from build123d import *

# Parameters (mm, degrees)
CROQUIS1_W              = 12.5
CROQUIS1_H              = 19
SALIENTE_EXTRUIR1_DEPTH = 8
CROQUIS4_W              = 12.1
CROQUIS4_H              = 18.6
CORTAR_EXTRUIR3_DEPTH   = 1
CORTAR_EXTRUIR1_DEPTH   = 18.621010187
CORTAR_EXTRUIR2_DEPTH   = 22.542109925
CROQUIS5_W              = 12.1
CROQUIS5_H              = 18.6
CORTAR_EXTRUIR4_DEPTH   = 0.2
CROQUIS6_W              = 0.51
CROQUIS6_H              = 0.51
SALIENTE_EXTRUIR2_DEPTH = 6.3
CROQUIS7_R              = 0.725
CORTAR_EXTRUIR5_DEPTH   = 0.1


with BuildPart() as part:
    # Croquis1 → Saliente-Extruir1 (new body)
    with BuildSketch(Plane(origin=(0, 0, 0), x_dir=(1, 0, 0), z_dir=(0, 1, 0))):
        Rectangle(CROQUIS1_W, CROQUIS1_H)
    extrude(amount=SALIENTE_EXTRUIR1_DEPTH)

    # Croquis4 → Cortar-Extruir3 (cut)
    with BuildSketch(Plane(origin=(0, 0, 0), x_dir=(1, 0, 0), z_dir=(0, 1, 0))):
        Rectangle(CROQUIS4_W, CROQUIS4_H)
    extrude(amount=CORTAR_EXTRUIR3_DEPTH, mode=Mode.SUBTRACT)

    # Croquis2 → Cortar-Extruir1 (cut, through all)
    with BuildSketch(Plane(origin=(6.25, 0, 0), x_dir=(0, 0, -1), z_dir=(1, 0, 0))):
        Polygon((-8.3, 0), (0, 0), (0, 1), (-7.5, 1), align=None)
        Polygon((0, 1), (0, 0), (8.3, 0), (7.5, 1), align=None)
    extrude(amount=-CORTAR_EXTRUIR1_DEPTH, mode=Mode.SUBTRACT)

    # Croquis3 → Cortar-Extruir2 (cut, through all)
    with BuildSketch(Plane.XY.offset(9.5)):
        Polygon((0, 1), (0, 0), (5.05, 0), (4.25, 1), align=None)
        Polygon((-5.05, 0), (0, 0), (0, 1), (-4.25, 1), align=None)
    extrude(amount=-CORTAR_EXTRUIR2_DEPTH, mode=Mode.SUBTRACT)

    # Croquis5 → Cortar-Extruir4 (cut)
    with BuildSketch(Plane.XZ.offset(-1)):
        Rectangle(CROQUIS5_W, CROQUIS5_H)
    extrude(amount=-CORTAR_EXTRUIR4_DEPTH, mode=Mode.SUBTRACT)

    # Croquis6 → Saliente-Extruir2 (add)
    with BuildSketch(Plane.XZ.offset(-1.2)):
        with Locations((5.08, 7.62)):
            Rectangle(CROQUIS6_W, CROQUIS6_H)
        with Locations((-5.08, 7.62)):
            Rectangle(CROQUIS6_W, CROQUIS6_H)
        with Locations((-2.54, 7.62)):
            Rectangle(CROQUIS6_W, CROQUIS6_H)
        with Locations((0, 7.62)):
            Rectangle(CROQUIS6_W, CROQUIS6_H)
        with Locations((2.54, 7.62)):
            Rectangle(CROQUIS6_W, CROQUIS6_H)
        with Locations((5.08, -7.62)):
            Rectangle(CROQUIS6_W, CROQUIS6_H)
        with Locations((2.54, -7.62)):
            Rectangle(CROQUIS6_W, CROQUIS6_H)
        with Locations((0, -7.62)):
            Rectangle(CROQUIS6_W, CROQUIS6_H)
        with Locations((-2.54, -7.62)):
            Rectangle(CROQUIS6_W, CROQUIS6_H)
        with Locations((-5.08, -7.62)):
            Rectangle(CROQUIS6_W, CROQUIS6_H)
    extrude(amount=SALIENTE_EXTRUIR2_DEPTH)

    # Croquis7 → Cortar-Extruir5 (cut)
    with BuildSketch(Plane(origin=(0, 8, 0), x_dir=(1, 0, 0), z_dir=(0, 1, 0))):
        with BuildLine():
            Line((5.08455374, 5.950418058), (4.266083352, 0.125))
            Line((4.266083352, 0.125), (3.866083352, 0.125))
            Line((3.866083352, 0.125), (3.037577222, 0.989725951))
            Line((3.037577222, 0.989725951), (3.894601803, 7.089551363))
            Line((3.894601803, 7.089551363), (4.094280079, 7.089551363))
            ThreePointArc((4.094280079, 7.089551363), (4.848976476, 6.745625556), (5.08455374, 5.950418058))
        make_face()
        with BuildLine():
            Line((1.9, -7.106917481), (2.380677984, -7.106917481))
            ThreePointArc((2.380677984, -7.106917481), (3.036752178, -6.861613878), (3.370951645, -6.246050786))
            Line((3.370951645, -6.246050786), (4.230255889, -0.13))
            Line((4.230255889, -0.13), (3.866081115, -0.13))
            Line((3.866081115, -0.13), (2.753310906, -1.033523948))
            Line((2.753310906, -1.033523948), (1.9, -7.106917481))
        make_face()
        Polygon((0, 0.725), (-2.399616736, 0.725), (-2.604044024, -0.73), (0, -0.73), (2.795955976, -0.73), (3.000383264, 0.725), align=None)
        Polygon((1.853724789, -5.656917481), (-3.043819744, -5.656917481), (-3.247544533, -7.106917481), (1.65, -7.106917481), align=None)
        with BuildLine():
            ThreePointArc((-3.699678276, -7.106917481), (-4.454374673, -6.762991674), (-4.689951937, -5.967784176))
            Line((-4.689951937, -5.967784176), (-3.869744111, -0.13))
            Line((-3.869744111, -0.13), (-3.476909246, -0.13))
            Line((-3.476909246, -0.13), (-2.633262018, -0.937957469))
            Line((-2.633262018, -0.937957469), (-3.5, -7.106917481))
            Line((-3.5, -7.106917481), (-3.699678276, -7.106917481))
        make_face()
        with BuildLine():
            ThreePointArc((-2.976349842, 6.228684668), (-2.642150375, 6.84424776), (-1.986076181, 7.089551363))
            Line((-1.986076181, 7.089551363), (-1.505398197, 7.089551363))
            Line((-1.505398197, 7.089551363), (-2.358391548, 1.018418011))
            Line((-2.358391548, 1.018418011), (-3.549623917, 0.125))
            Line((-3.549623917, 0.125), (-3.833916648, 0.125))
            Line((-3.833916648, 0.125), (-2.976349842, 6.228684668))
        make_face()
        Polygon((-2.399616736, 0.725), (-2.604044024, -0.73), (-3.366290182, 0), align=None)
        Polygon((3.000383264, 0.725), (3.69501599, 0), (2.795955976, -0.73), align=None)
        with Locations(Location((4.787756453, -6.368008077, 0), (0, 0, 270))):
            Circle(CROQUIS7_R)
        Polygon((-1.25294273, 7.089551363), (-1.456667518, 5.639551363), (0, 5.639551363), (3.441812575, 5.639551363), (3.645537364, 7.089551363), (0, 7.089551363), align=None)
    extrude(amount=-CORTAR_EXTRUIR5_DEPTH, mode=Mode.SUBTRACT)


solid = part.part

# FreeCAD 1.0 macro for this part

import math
import FreeCAD as App
import Part
import Sketcher


def add_polygon(sketch, points):
    """Adds a closed chain of lines whose ends are joined by coincident constraints."""
    first, n = sketch.GeometryCount, len(points)
    for a, b in zip(points, points[1:] + points[:1]):
        sketch.addGeometry(Part.LineSegment(App.Vector(*a, 0), App.Vector(*b, 0)), False)
    for i in range(n):
        sketch.addConstraint(Sketcher.Constraint("Coincident", first + i, 2, first + (i + 1) % n, 1))

doc = App.newDocument("Part")
body = doc.addObject("PartDesign::Body", "Body")

# Sketch on XZ plane
sketch1 = body.newObject("Sketcher::SketchObject", "Sketch")
sketch1.AttachmentSupport = (doc.getObject("XZ_Plane"), [""])
sketch1.MapMode = "FlatFace"
add_polygon(sketch1, [(-6.25, -9.5), (-6.25, 9.5), (6.25, 9.5), (6.25, -9.5)])  # lines 0-3
sketch1.addConstraint(Sketcher.Constraint("Vertical", 0))
sketch1.addConstraint(Sketcher.Constraint("Horizontal", 1))
sketch1.addConstraint(Sketcher.Constraint("Vertical", 2))
sketch1.addConstraint(Sketcher.Constraint("Horizontal", 3))
sketch1.addConstraint(Sketcher.Constraint("Symmetric", 0, 2, 2, 2, -1, 1))
sketch1.addConstraint(Sketcher.Constraint("DistanceY", 0, 1, 0, 2, 19.0))
sketch1.addConstraint(Sketcher.Constraint("DistanceX", 1, 1, 1, 2, 12.5))
pad1 = body.newObject("PartDesign::Pad", "Pad")
pad1.Profile = sketch1
pad1.Length = 8
pad1.Reversed = True

# Sketch on XZ plane
sketch2 = body.newObject("Sketcher::SketchObject", "Sketch001")
sketch2.AttachmentSupport = (doc.getObject("XZ_Plane"), [""])
sketch2.MapMode = "FlatFace"
add_polygon(sketch2, [(-6.05, -9.3), (-6.05, 9.3), (6.05, 9.3), (6.05, -9.3)])  # lines 0-3
sketch2.addConstraint(Sketcher.Constraint("Vertical", 0))
sketch2.addConstraint(Sketcher.Constraint("Horizontal", 1))
sketch2.addConstraint(Sketcher.Constraint("Vertical", 2))
sketch2.addConstraint(Sketcher.Constraint("Horizontal", 3))
sketch2.addConstraint(Sketcher.Constraint("Symmetric", 0, 2, 2, 2, -1, 1))
sketch2.addConstraint(Sketcher.Constraint("DistanceX", 1, 1, 1, 2, 12.1))
sketch2.addConstraint(Sketcher.Constraint("DistanceY", 0, 1, 0, 2, 18.6))
pocket1 = body.newObject("PartDesign::Pocket", "Pocket")
pocket1.Profile = sketch2
pocket1.Length = 1

# Sketch on YZ plane
sketch3 = body.newObject("Sketcher::SketchObject", "Sketch002")
sketch3.AttachmentSupport = (doc.getObject("YZ_Plane"), [""])
sketch3.MapMode = "FlatFace"
sketch3.AttachmentOffset = App.Placement(App.Vector(0, 0, 6.25), App.Rotation())
add_polygon(sketch3, [(0, 8.3), (0, -8.3), (1, -7.5), (1, 7.5)])  # lines 0-3
sketch3.addConstraint(Sketcher.Constraint("Vertical", 0))
sketch3.addConstraint(Sketcher.Constraint("Vertical", 2))
sketch3.addConstraint(Sketcher.Constraint("Symmetric", 0, 2, 3, 2, -1, 1))
sketch3.addConstraint(Sketcher.Constraint("Equal", 1, 3))
sketch3.addConstraint(Sketcher.Constraint("DistanceY", 2, 1, 2, 2, 15.0))
sketch3.addConstraint(Sketcher.Constraint("DistanceY", 0, 2, 0, 1, 16.6))
sketch3.addConstraint(Sketcher.Constraint("DistanceX", -1, 1, 1, 2, 1.0))
pocket2 = body.newObject("PartDesign::Pocket", "Pocket001")
pocket2.Profile = sketch3
pocket2.Type = "ThroughAll"

# Sketch on XY plane
sketch4 = body.newObject("Sketcher::SketchObject", "Sketch003")
sketch4.AttachmentSupport = (doc.getObject("XY_Plane"), [""])
sketch4.MapMode = "FlatFace"
sketch4.AttachmentOffset = App.Placement(App.Vector(0, 0, 9.5), App.Rotation())
add_polygon(sketch4, [(5.05, 0), (4.25, 1), (-4.25, 1), (-5.05, 0)])  # lines 0-3
sketch4.addConstraint(Sketcher.Constraint("Horizontal", 1))
sketch4.addConstraint(Sketcher.Constraint("Horizontal", 3))
sketch4.addConstraint(Sketcher.Constraint("Symmetric", 2, 2, 3, 2, -1, 1))
sketch4.addConstraint(Sketcher.Constraint("Equal", 0, 2))
sketch4.addConstraint(Sketcher.Constraint("DistanceX", 1, 2, 1, 1, 8.5))
sketch4.addConstraint(Sketcher.Constraint("DistanceX", 3, 1, 3, 2, 10.1))
sketch4.addConstraint(Sketcher.Constraint("DistanceY", -1, 1, 0, 2, 1.0))
pocket3 = body.newObject("PartDesign::Pocket", "Pocket002")
pocket3.Profile = sketch4
pocket3.Type = "ThroughAll"

# Sketch on XZ plane
sketch5 = body.newObject("Sketcher::SketchObject", "Sketch004")
sketch5.AttachmentSupport = (doc.getObject("XZ_Plane"), [""])
sketch5.MapMode = "FlatFace"
sketch5.AttachmentOffset = App.Placement(App.Vector(0, 0, -1), App.Rotation())
add_polygon(sketch5, [(-6.05, 9.3), (-6.05, -9.3), (6.05, -9.3), (6.05, 9.3)])  # lines 0-3
sketch5.addConstraint(Sketcher.Constraint("Vertical", 0))
sketch5.addConstraint(Sketcher.Constraint("Horizontal", 1))
sketch5.addConstraint(Sketcher.Constraint("Vertical", 2))
sketch5.addConstraint(Sketcher.Constraint("Horizontal", 3))
sketch5.addConstraint(Sketcher.Constraint("Symmetric", 0, 2, 2, 2, -1, 1))
sketch5.addConstraint(Sketcher.Constraint("DistanceX", 1, 1, 1, 2, 12.1))
sketch5.addConstraint(Sketcher.Constraint("DistanceY", 0, 2, 0, 1, 18.6))
pocket4 = body.newObject("PartDesign::Pocket", "Pocket003")
pocket4.Profile = sketch5
pocket4.Length = 0.2

# Sketch on XZ plane
sketch6 = body.newObject("Sketcher::SketchObject", "Sketch005")
sketch6.AttachmentSupport = (doc.getObject("XZ_Plane"), [""])
sketch6.MapMode = "FlatFace"
sketch6.AttachmentOffset = App.Placement(App.Vector(0, 0, -1.2), App.Rotation())
add_polygon(sketch6, [(4.825, 7.875), (4.825, 7.365), (5.335, 7.365), (5.335, 7.875)])  # lines 0-3
add_polygon(sketch6, [(-5.335, 7.875), (-5.335, 7.365), (-4.825, 7.365), (-4.825, 7.875)])  # lines 4-7
add_polygon(sketch6, [(-2.795, 7.875), (-2.795, 7.365), (-2.285, 7.365), (-2.285, 7.875)])  # lines 8-11
add_polygon(sketch6, [(-0.255, 7.875), (-0.255, 7.365), (0.255, 7.365), (0.255, 7.875)])  # lines 12-15
add_polygon(sketch6, [(2.285, 7.875), (2.285, 7.365), (2.795, 7.365), (2.795, 7.875)])  # lines 16-19
add_polygon(sketch6, [(4.825, -7.365), (4.825, -7.875), (5.335, -7.875), (5.335, -7.365)])  # lines 20-23
add_polygon(sketch6, [(2.285, -7.365), (2.285, -7.875), (2.795, -7.875), (2.795, -7.365)])  # lines 24-27
add_polygon(sketch6, [(-0.255, -7.365), (-0.255, -7.875), (0.255, -7.875), (0.255, -7.365)])  # lines 28-31
add_polygon(sketch6, [(-2.795, -7.365), (-2.795, -7.875), (-2.285, -7.875), (-2.285, -7.365)])  # lines 32-35
add_polygon(sketch6, [(-5.335, -7.365), (-5.335, -7.875), (-4.825, -7.875), (-4.825, -7.365)])  # lines 36-39
sketch6.addConstraint(Sketcher.Constraint("Vertical", 0))
sketch6.addConstraint(Sketcher.Constraint("Horizontal", 1))
sketch6.addConstraint(Sketcher.Constraint("Vertical", 2))
sketch6.addConstraint(Sketcher.Constraint("Horizontal", 3))
sketch6.addConstraint(Sketcher.Constraint("Vertical", 4))
sketch6.addConstraint(Sketcher.Constraint("Horizontal", 5))
sketch6.addConstraint(Sketcher.Constraint("Vertical", 6))
sketch6.addConstraint(Sketcher.Constraint("Horizontal", 7))
sketch6.addConstraint(Sketcher.Constraint("Vertical", 8))
sketch6.addConstraint(Sketcher.Constraint("Horizontal", 9))
sketch6.addConstraint(Sketcher.Constraint("Vertical", 10))
sketch6.addConstraint(Sketcher.Constraint("Horizontal", 11))
sketch6.addConstraint(Sketcher.Constraint("Vertical", 12))
sketch6.addConstraint(Sketcher.Constraint("Horizontal", 13))
sketch6.addConstraint(Sketcher.Constraint("Vertical", 14))
sketch6.addConstraint(Sketcher.Constraint("Horizontal", 15))
sketch6.addConstraint(Sketcher.Constraint("Vertical", 16))
sketch6.addConstraint(Sketcher.Constraint("Horizontal", 17))
sketch6.addConstraint(Sketcher.Constraint("Vertical", 18))
sketch6.addConstraint(Sketcher.Constraint("Horizontal", 19))
sketch6.addConstraint(Sketcher.Constraint("Vertical", 20))
sketch6.addConstraint(Sketcher.Constraint("Horizontal", 21))
sketch6.addConstraint(Sketcher.Constraint("Vertical", 22))
sketch6.addConstraint(Sketcher.Constraint("Horizontal", 23))
sketch6.addConstraint(Sketcher.Constraint("Vertical", 24))
sketch6.addConstraint(Sketcher.Constraint("Horizontal", 25))
sketch6.addConstraint(Sketcher.Constraint("Vertical", 26))
sketch6.addConstraint(Sketcher.Constraint("Horizontal", 27))
sketch6.addConstraint(Sketcher.Constraint("Vertical", 28))
sketch6.addConstraint(Sketcher.Constraint("Horizontal", 29))
sketch6.addConstraint(Sketcher.Constraint("Vertical", 30))
sketch6.addConstraint(Sketcher.Constraint("Horizontal", 31))
sketch6.addConstraint(Sketcher.Constraint("Vertical", 32))
sketch6.addConstraint(Sketcher.Constraint("Horizontal", 33))
sketch6.addConstraint(Sketcher.Constraint("Vertical", 34))
sketch6.addConstraint(Sketcher.Constraint("Horizontal", 35))
sketch6.addConstraint(Sketcher.Constraint("Vertical", 36))
sketch6.addConstraint(Sketcher.Constraint("Horizontal", 37))
sketch6.addConstraint(Sketcher.Constraint("Vertical", 38))
sketch6.addConstraint(Sketcher.Constraint("Horizontal", 39))
sketch6.addConstraint(Sketcher.Constraint("Symmetric", 6, 2, 20, 2, -1, 1))
sketch6.addConstraint(Sketcher.Constraint("Symmetric", 4, 2, 22, 2, -1, 1))
sketch6.addConstraint(Sketcher.Constraint("Symmetric", 10, 2, 24, 2, -1, 1))
sketch6.addConstraint(Sketcher.Constraint("Symmetric", 8, 2, 26, 2, -1, 1))
sketch6.addConstraint(Sketcher.Constraint("Symmetric", 14, 2, 28, 2, -1, 1))
sketch6.addConstraint(Sketcher.Constraint("Symmetric", 12, 2, 30, 2, -1, 1))
sketch6.addConstraint(Sketcher.Constraint("Symmetric", 18, 2, 32, 2, -1, 1))
sketch6.addConstraint(Sketcher.Constraint("Symmetric", 16, 2, 34, 2, -1, 1))
sketch6.addConstraint(Sketcher.Constraint("Symmetric", 2, 2, 36, 2, -1, 1))
sketch6.addConstraint(Sketcher.Constraint("Symmetric", 0, 2, 38, 2, -1, 1))
sketch6.addConstraint(Sketcher.Constraint("Symmetric", 1, 2, 4, 2, -2))
sketch6.addConstraint(Sketcher.Constraint("Symmetric", 3, 2, 6, 2, -2))
sketch6.addConstraint(Sketcher.Constraint("Symmetric", 9, 2, 16, 2, -2))
sketch6.addConstraint(Sketcher.Constraint("Symmetric", 11, 2, 18, 2, -2))
sketch6.addConstraint(Sketcher.Constraint("Horizontal", 5, 2, 8, 2))
sketch6.addConstraint(Sketcher.Constraint("Horizontal", 7, 2, 10, 2))
sketch6.addConstraint(Sketcher.Constraint("Horizontal", 9, 2, 12, 2))
sketch6.addConstraint(Sketcher.Constraint("Horizontal", 11, 2, 14, 2))
sketch6.addConstraint(Sketcher.Constraint("Vertical", 15, 2, 28, 2))
sketch6.addConstraint(Sketcher.Constraint("Equal", 7, 9))
sketch6.addConstraint(Sketcher.Constraint("Equal", 11, 13))
sketch6.addConstraint(Sketcher.Constraint("Equal", 39, 0))
sketch6.addConstraint(Sketcher.Constraint("DistanceX", 1, 1, 1, 2, 0.51))
sketch6.addConstraint(Sketcher.Constraint("DistanceX", 4, 2, 0, 2, 10.16))
sketch6.addConstraint(Sketcher.Constraint("DistanceX", 5, 2, 8, 2, 2.03))
sketch6.addConstraint(Sketcher.Constraint("DistanceY", 20, 2, 0, 2, 15.24))
pad2 = body.newObject("PartDesign::Pad", "Pad001")
pad2.Profile = sketch6
pad2.Length = 6.3

# Sketch on XZ plane
sketch7 = body.newObject("Sketcher::SketchObject", "Sketch006")
sketch7.AttachmentSupport = (doc.getObject("XZ_Plane"), [""])
sketch7.MapMode = "FlatFace"
sketch7.AttachmentOffset = App.Placement(App.Vector(0, 0, -8), App.Rotation())
sketch7.addGeometry(Part.LineSegment(App.Vector(4.266083, -0.125, 0), App.Vector(5.084554, -5.950418, 0)), False)  # 0
sketch7.addGeometry(Part.ArcOfCircle(Part.Circle(App.Vector(4.09428, -6.089551, 0), App.Vector(0, 0, 1), 1), math.radians(-90), math.radians(7.997697)), False)  # 1
sketch7.addGeometry(Part.LineSegment(App.Vector(4.09428, -7.089551, 0), App.Vector(3.894602, -7.089551, 0)), False)  # 2
sketch7.addGeometry(Part.LineSegment(App.Vector(3.894602, -7.089551, 0), App.Vector(3.037577, -0.989726, 0)), False)  # 3
sketch7.addGeometry(Part.LineSegment(App.Vector(3.037577, -0.989726, 0), App.Vector(3.866083, -0.125, 0)), False)  # 4
sketch7.addGeometry(Part.LineSegment(App.Vector(3.866083, -0.125, 0), App.Vector(4.266083, -0.125, 0)), False)  # 5
sketch7.addGeometry(Part.LineSegment(App.Vector(1.9, 7.106917, 0), App.Vector(2.380678, 7.106917, 0)), False)  # 6
sketch7.addGeometry(Part.ArcOfCircle(Part.Circle(App.Vector(2.380678, 6.106917, 0), App.Vector(0, 0, 1), 1), math.radians(7.997698), math.radians(90)), False)  # 7
sketch7.addGeometry(Part.LineSegment(App.Vector(3.370952, 6.246051, 0), App.Vector(4.230256, 0.13, 0)), False)  # 8
sketch7.addGeometry(Part.LineSegment(App.Vector(4.230256, 0.13, 0), App.Vector(3.866081, 0.13, 0)), False)  # 9
sketch7.addGeometry(Part.LineSegment(App.Vector(3.866081, 0.13, 0), App.Vector(2.753311, 1.033524, 0)), False)  # 10
sketch7.addGeometry(Part.LineSegment(App.Vector(2.753311, 1.033524, 0), App.Vector(1.9, 7.106917, 0)), False)  # 11
add_polygon(sketch7, [(-2.604044, 0.73), (2.795956, 0.73), (3.695016, 0), (3.000383, -0.725), (-2.399617, -0.725), (-3.36629, 0)])  # lines 12-17
add_polygon(sketch7, [(1.853725, 5.656917), (-3.04382, 5.656917), (-3.247545, 7.106917), (1.65, 7.106917)])  # lines 18-21
sketch7.addGeometry(Part.ArcOfCircle(Part.Circle(App.Vector(-3.699678, 6.106917, 0), App.Vector(0, 0, 1), 1), math.radians(90), math.radians(187.997697)), False)  # 22
sketch7.addGeometry(Part.LineSegment(App.Vector(-3.699678, 7.106917, 0), App.Vector(-3.5, 7.106917, 0)), False)  # 23
sketch7.addGeometry(Part.LineSegment(App.Vector(-3.5, 7.106917, 0), App.Vector(-2.633262, 0.937957, 0)), False)  # 24
sketch7.addGeometry(Part.LineSegment(App.Vector(-2.633262, 0.937957, 0), App.Vector(-3.476909, 0.13, 0)), False)  # 25
sketch7.addGeometry(Part.LineSegment(App.Vector(-3.476909, 0.13, 0), App.Vector(-3.869744, 0.13, 0)), False)  # 26
sketch7.addGeometry(Part.LineSegment(App.Vector(-3.869744, 0.13, 0), App.Vector(-4.689952, 5.967784, 0)), False)  # 27
sketch7.addGeometry(Part.ArcOfCircle(Part.Circle(App.Vector(-1.986076, -6.089551, 0), App.Vector(0, 0, 1), 1), math.radians(-172.002302), math.radians(-90)), False)  # 28
sketch7.addGeometry(Part.LineSegment(App.Vector(-2.97635, -6.228685, 0), App.Vector(-3.833917, -0.125, 0)), False)  # 29
sketch7.addGeometry(Part.LineSegment(App.Vector(-3.833917, -0.125, 0), App.Vector(-3.549624, -0.125, 0)), False)  # 30
sketch7.addGeometry(Part.LineSegment(App.Vector(-3.549624, -0.125, 0), App.Vector(-2.358392, -1.018418, 0)), False)  # 31
sketch7.addGeometry(Part.LineSegment(App.Vector(-2.358392, -1.018418, 0), App.Vector(-1.505398, -7.089551, 0)), False)  # 32
sketch7.addGeometry(Part.LineSegment(App.Vector(-1.505398, -7.089551, 0), App.Vector(-1.986076, -7.089551, 0)), False)  # 33
sketch7.addGeometry(Part.Circle(App.Vector(4.787756, 6.368008, 0), App.Vector(0, 0, 1), 0.725), False)  # 34
add_polygon(sketch7, [(-1.252943, -7.089551), (-1.456668, -5.639551), (3.441813, -5.639551), (3.645537, -7.089551)])  # lines 35-38
sketch7.addConstraint(Sketcher.Constraint("Tangent", 0, 2, 1, 2))
sketch7.addConstraint(Sketcher.Constraint("Tangent", 1, 1, 2, 1))
sketch7.addConstraint(Sketcher.Constraint("Coincident", 2, 2, 3, 1))
sketch7.addConstraint(Sketcher.Constraint("Coincident", 3, 2, 4, 1))
sketch7.addConstraint(Sketcher.Constraint("Coincident", 4, 2, 5, 1))
sketch7.addConstraint(Sketcher.Constraint("Coincident", 5, 2, 0, 1))
sketch7.addConstraint(Sketcher.Constraint("Tangent", 6, 2, 7, 2))
sketch7.addConstraint(Sketcher.Constraint("Tangent", 7, 1, 8, 1))
sketch7.addConstraint(Sketcher.Constraint("Coincident", 8, 2, 9, 1))
sketch7.addConstraint(Sketcher.Constraint("Coincident", 9, 2, 10, 1))
sketch7.addConstraint(Sketcher.Constraint("Coincident", 10, 2, 11, 1))
sketch7.addConstraint(Sketcher.Constraint("Coincident", 11, 2, 6, 1))
sketch7.addConstraint(Sketcher.Constraint("Tangent", 22, 1, 23, 1))
sketch7.addConstraint(Sketcher.Constraint("Coincident", 23, 2, 24, 1))
sketch7.addConstraint(Sketcher.Constraint("Coincident", 24, 2, 25, 1))
sketch7.addConstraint(Sketcher.Constraint("Coincident", 25, 2, 26, 1))
sketch7.addConstraint(Sketcher.Constraint("Coincident", 26, 2, 27, 1))
sketch7.addConstraint(Sketcher.Constraint("Tangent", 27, 2, 22, 2))
sketch7.addConstraint(Sketcher.Constraint("Tangent", 28, 1, 29, 1))
sketch7.addConstraint(Sketcher.Constraint("Coincident", 29, 2, 30, 1))
sketch7.addConstraint(Sketcher.Constraint("Coincident", 30, 2, 31, 1))
sketch7.addConstraint(Sketcher.Constraint("Coincident", 31, 2, 32, 1))
sketch7.addConstraint(Sketcher.Constraint("Coincident", 32, 2, 33, 1))
sketch7.addConstraint(Sketcher.Constraint("Tangent", 33, 2, 28, 2))
sketch7.addConstraint(Sketcher.Constraint("Horizontal", 2))
sketch7.addConstraint(Sketcher.Constraint("Horizontal", 5))
sketch7.addConstraint(Sketcher.Constraint("Horizontal", 6))
sketch7.addConstraint(Sketcher.Constraint("Horizontal", 9))
sketch7.addConstraint(Sketcher.Constraint("Horizontal", 12))
sketch7.addConstraint(Sketcher.Constraint("Horizontal", 15))
sketch7.addConstraint(Sketcher.Constraint("Horizontal", 18))
sketch7.addConstraint(Sketcher.Constraint("Horizontal", 20))
sketch7.addConstraint(Sketcher.Constraint("Horizontal", 23))
sketch7.addConstraint(Sketcher.Constraint("Horizontal", 26))
sketch7.addConstraint(Sketcher.Constraint("Horizontal", 30))
sketch7.addConstraint(Sketcher.Constraint("Horizontal", 33))
sketch7.addConstraint(Sketcher.Constraint("Horizontal", 36))
sketch7.addConstraint(Sketcher.Constraint("Horizontal", 38))
sketch7.addConstraint(Sketcher.Constraint("Equal", 1, 7))
sketch7.addConstraint(Sketcher.Constraint("Equal", 7, 22))
sketch7.addConstraint(Sketcher.Constraint("Equal", 22, 28))
sketch7.addConstraint(Sketcher.Constraint("PointOnObject", 13, 2, -1))
sketch7.addConstraint(Sketcher.Constraint("PointOnObject", 16, 2, -1))
sketch7.addConstraint(Sketcher.Constraint("Parallel", 0, 3))
sketch7.addConstraint(Sketcher.Constraint("Parallel", 3, 8))
sketch7.addConstraint(Sketcher.Constraint("Parallel", 8, 11))
sketch7.addConstraint(Sketcher.Constraint("Parallel", 10, 13))
sketch7.addConstraint(Sketcher.Constraint("Parallel", 4, 14))
sketch7.addConstraint(Sketcher.Constraint("Parallel", 11, 19))
sketch7.addConstraint(Sketcher.Constraint("Parallel", 19, 21))
sketch7.addConstraint(Sketcher.Constraint("Parallel", 21, 24))
sketch7.addConstraint(Sketcher.Constraint("Parallel", 17, 25))
sketch7.addConstraint(Sketcher.Constraint("Parallel", 24, 27))
sketch7.addConstraint(Sketcher.Constraint("Parallel", 27, 29))
sketch7.addConstraint(Sketcher.Constraint("Parallel", 16, 31))
sketch7.addConstraint(Sketcher.Constraint("Parallel", 29, 32))
sketch7.addConstraint(Sketcher.Constraint("Parallel", 32, 35))
sketch7.addConstraint(Sketcher.Constraint("Parallel", 35, 37))
sketch7.addConstraint(Sketcher.Constraint("Horizontal", 7, 3, 22, 3))
sketch7.addConstraint(Sketcher.Constraint("Horizontal", 1, 3, 28, 3))
sketch7.addConstraint(Sketcher.Constraint("Horizontal", 11, 2, 19, 2))
sketch7.addConstraint(Sketcher.Constraint("Horizontal", 9, 2, 25, 2))
sketch7.addConstraint(Sketcher.Constraint("Horizontal", 5, 2, 29, 2))
sketch7.addConstraint(Sketcher.Constraint("Horizontal", 33, 2, 37, 2))
sketch7.addConstraint(Sketcher.Constraint("Equal", 12, 15))
sketch7.addConstraint(Sketcher.Constraint("Equal", 2, 23))
sketch7.addConstraint(Sketcher.Constraint("Equal", 6, 33))
sketch7.addConstraint(Sketcher.Constraint("Equal", 21, 35))
sketch7.addConstraint(Sketcher.Constraint("Radius", 1, 1.0))
sketch7.addConstraint(Sketcher.Constraint("Diameter", 34, 1.45))
sketch7.addConstraint(Sketcher.Constraint("DistanceX", 5, 1, 5, 2, 0.4))
sketch7.addConstraint(Sketcher.Constraint("DistanceX", 12, 1, 12, 2, 5.4))
sketch7.addConstraint(Sketcher.Constraint("DistanceX", -1, 1, 11, 2, 1.9))
sketch7.addConstraint(Sketcher.Constraint("DistanceX", 23, 2, -1, 1, 3.5))
sketch7.addConstraint(Sketcher.Constraint("DistanceY", 9, 2, 12, 2, 0.6))
sketch7.addConstraint(Sketcher.Constraint("DistanceY", 14, 2, 4, 2, 0.6))
sketch7.addConstraint(Sketcher.Constraint("DistanceX", 32, 2, 2, 2, 5.4))
sketch7.addConstraint(Sketcher.Constraint("DistanceY", -1, 1, 8, 2, 0.13))
sketch7.addConstraint(Sketcher.Constraint("DistanceX", -1, 1, 20, 2, 1.65))
sketch7.addConstraint(Sketcher.Constraint("DistanceY", 18, 2, 22, 3, 0.45))
sketch7.addConstraint(Sketcher.Constraint("DistanceY", 4, 2, -1, 1, 0.125))
sketch7.addConstraint(Sketcher.Constraint("DistanceX", 2, 2, 2, 1, 0.199678))
sketch7.addConstraint(Sketcher.Constraint("DistanceX", 36, 1, 36, 2, 4.89848))
sketch7.addConstraint(Sketcher.Constraint("DistanceX", -1, 1, 2, 2, 3.894602))
sketch7.addConstraint(Sketcher.Constraint("DistanceX", 7, 3, 3, 2, 0.656899))
sketch7.addConstraint(Sketcher.Constraint("DistanceX", 12, 2, 8, 2, 1.4343))
sketch7.addConstraint(Sketcher.Constraint("DistanceX", 14, 2, 4, 2, 0.8657))
sketch7.addConstraint(Sketcher.Constraint("DistanceX", 16, 2, 10, 2, 6.119601))
sketch7.addConstraint(Sketcher.Constraint("DistanceX", 26, 2, 17, 2, 1.2657))
sketch7.addConstraint(Sketcher.Constraint("DistanceX", 16, 2, 31, 2, 1.007899))
sketch7.addConstraint(Sketcher.Constraint("Distance", 4, 1.19757))
sketch7.addConstraint(Sketcher.Constraint("Distance", 8, 6.176122))
sketch7.addConstraint(Sketcher.Constraint("Distance", 16, 1.208339))
sketch7.addConstraint(Sketcher.Constraint("Distance", 24, 6.229551))
sketch7.addConstraint(Sketcher.Constraint("DistanceX", 9, 2, 9, 1, 0.364175))
sketch7.addConstraint(Sketcher.Constraint("DistanceX", 18, 2, 18, 1, 4.897545))
sketch7.addConstraint(Sketcher.Constraint("DistanceY", -1, 1, 34, 3, 6.368008))
sketch7.addConstraint(Sketcher.Constraint("DistanceX", 7, 3, 34, 3, 2.407078))
sketch7.addConstraint(Sketcher.Constraint("DistanceX", 28, 3, 35, 2, 0.529409))
pocket5 = body.newObject("PartDesign::Pocket", "Pocket004")
pocket5.Profile = sketch7
pocket5.Length = 0.1
pocket5.Reversed = True

doc.recompute()
